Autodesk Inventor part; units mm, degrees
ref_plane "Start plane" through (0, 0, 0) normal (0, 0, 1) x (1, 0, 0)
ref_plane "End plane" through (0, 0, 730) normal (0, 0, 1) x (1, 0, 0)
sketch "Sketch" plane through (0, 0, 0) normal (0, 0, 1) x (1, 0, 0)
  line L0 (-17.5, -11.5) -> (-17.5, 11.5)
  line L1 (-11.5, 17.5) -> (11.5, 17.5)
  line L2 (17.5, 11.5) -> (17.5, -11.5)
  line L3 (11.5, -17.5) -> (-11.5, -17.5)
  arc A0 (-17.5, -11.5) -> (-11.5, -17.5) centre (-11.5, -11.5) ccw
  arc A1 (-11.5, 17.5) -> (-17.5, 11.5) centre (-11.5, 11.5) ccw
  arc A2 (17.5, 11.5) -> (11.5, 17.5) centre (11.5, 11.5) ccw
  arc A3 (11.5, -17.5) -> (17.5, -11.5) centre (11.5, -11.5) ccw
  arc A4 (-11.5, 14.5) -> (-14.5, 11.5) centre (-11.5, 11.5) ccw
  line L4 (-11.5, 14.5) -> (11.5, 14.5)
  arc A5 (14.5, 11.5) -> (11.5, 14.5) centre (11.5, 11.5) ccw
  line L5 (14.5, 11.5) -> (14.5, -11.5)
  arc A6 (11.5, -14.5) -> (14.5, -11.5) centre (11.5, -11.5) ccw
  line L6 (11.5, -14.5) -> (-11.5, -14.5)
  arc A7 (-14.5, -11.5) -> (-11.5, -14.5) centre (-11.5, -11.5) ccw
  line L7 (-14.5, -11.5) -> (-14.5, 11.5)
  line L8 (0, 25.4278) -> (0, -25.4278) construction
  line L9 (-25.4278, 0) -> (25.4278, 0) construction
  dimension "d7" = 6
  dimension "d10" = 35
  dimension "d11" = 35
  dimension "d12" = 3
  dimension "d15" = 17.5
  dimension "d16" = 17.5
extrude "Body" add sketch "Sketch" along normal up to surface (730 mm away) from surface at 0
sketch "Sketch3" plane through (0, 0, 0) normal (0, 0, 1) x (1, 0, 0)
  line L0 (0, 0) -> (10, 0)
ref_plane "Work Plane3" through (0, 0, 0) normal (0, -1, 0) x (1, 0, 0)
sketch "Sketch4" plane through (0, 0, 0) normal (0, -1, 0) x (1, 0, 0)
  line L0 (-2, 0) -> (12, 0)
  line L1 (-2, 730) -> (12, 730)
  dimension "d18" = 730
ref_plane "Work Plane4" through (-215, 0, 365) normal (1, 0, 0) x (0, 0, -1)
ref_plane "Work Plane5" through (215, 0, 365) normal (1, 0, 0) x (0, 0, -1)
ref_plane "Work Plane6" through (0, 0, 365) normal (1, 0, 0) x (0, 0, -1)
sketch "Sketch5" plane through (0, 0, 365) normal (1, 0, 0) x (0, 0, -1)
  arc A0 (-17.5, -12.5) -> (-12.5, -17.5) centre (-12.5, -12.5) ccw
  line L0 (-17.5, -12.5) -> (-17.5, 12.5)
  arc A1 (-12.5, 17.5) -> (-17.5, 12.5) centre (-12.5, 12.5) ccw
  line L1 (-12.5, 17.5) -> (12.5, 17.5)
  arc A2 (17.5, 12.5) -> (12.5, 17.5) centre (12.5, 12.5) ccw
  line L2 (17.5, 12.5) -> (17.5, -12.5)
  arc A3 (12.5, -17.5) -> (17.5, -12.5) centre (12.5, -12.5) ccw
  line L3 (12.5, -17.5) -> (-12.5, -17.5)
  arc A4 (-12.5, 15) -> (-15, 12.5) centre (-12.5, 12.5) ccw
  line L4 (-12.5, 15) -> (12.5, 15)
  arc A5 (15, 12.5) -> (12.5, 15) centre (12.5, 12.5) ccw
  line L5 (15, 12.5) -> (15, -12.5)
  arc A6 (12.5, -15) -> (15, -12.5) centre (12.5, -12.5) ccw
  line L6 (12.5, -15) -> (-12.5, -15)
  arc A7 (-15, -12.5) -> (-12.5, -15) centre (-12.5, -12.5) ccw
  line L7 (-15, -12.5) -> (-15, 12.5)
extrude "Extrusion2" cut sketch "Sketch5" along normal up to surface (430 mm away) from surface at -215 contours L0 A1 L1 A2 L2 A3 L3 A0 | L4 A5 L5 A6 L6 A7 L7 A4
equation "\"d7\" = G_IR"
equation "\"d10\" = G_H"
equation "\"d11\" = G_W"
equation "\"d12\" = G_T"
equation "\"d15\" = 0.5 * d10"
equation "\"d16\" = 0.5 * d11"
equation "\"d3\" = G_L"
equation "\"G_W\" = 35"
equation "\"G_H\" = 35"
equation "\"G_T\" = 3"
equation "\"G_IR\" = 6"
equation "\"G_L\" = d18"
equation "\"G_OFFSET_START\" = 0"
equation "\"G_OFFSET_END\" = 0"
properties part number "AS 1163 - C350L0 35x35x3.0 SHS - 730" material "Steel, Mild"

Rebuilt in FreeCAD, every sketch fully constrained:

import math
import FreeCAD as App
import Part
import Sketcher

doc = App.newDocument("Part")
body = doc.addObject("PartDesign::Body", "Body")
body.AllowCompound = True

sketch1 = body.newObject("Sketcher::SketchObject", "Sketch")
sketch1.AttachmentSupport = (doc.getObject("XY_Plane"), [""])
sketch1.MapMode = "FlatFace"
sketch1.addGeometry([
    Part.LineSegment(App.Vector(-17.5, 11.5, 0), App.Vector(-17.5, -11.5, 0)),
    Part.ArcOfCircle(Part.Circle(App.Vector(-11.5, -11.5, 0), App.Vector(0, 0, 1), 6), math.radians(180), math.radians(270)),
    Part.LineSegment(App.Vector(-11.5, -17.5, 0), App.Vector(11.5, -17.5, 0)),
    Part.ArcOfCircle(Part.Circle(App.Vector(11.5, -11.5, 0), App.Vector(0, 0, 1), 6), math.radians(-90), math.radians(0)),
    Part.LineSegment(App.Vector(17.5, -11.5, 0), App.Vector(17.5, 11.5, 0)),
    Part.ArcOfCircle(Part.Circle(App.Vector(11.5, 11.5, 0), App.Vector(0, 0, 1), 6), math.radians(0), math.radians(90)),
    Part.LineSegment(App.Vector(11.5, 17.5, 0), App.Vector(-11.5, 17.5, 0)),
    Part.ArcOfCircle(Part.Circle(App.Vector(-11.5, 11.5, 0), App.Vector(0, 0, 1), 6), math.radians(90), math.radians(180)),
    Part.ArcOfCircle(Part.Circle(App.Vector(-11.5, 11.5, 0), App.Vector(0, 0, 1), 3), math.radians(90), math.radians(180)),
    Part.LineSegment(App.Vector(-11.5, 14.5, 0), App.Vector(11.5, 14.5, 0)),
    Part.ArcOfCircle(Part.Circle(App.Vector(11.5, 11.5, 0), App.Vector(0, 0, 1), 3), math.radians(0), math.radians(90)),
    Part.LineSegment(App.Vector(14.5, 11.5, 0), App.Vector(14.5, -11.5, 0)),
    Part.ArcOfCircle(Part.Circle(App.Vector(11.5, -11.5, 0), App.Vector(0, 0, 1), 3), math.radians(-90), math.radians(0)),
    Part.LineSegment(App.Vector(11.5, -14.5, 0), App.Vector(-11.5, -14.5, 0)),
    Part.ArcOfCircle(Part.Circle(App.Vector(-11.5, -11.5, 0), App.Vector(0, 0, 1), 3), math.radians(180), math.radians(270)),
    Part.LineSegment(App.Vector(-14.5, -11.5, 0), App.Vector(-14.5, 11.5, 0)),
], False)
sketch1.addConstraint([
    Sketcher.Constraint("Tangent", 0, 2, 1, 1),
    Sketcher.Constraint("Tangent", 1, 2, 2, 1),
    Sketcher.Constraint("Tangent", 2, 2, 3, 1),
    Sketcher.Constraint("Tangent", 3, 2, 4, 1),
    Sketcher.Constraint("Tangent", 4, 2, 5, 1),
    Sketcher.Constraint("Tangent", 5, 2, 6, 1),
    Sketcher.Constraint("Tangent", 6, 2, 7, 1),
    Sketcher.Constraint("Tangent", 7, 2, 0, 1),
    Sketcher.Constraint("Tangent", 8, 1, 9, 1),
    Sketcher.Constraint("Tangent", 9, 2, 10, 2),
    Sketcher.Constraint("Tangent", 10, 1, 11, 1),
    Sketcher.Constraint("Tangent", 11, 2, 12, 2),
    Sketcher.Constraint("Tangent", 12, 1, 13, 1),
    Sketcher.Constraint("Tangent", 13, 2, 14, 2),
    Sketcher.Constraint("Tangent", 14, 1, 15, 1),
    Sketcher.Constraint("Tangent", 15, 2, 8, 2),
    Sketcher.Constraint("Vertical", 0),
    Sketcher.Constraint("Horizontal", 2),
    Sketcher.Constraint("Vertical", 4),
    Sketcher.Constraint("Horizontal", 6),
    Sketcher.Constraint("Horizontal", 9),
    Sketcher.Constraint("Vertical", 11),
    Sketcher.Constraint("Horizontal", 13),
    Sketcher.Constraint("Vertical", 15),
    Sketcher.Constraint("Coincident", 8, 3, 7, 3),
    Sketcher.Constraint("Coincident", 10, 3, 5, 3),
    Sketcher.Constraint("Coincident", 12, 3, 3, 3),
    Sketcher.Constraint("Equal", 1, 3),
    Sketcher.Constraint("Equal", 3, 5),
    Sketcher.Constraint("Equal", 5, 7),
    Sketcher.Constraint("Equal", 12, 14),
    Sketcher.Constraint("Symmetric", 1, 3, 5, 3, -1, 1),
    Sketcher.Constraint("Equal", 13, 0),
    Sketcher.Constraint("Radius", 1, 6.0),
    Sketcher.Constraint("Radius", 8, 3.0),
    Sketcher.Constraint("DistanceX", 0, 2, -1, 1, 17.5),
])
pad1 = body.newObject("PartDesign::Pad", "Pad")
pad1.Profile = sketch1
pad1.Length = 730

sketch2 = body.newObject("Sketcher::SketchObject", "Sketch001")
sketch2.AttachmentSupport = (doc.getObject("YZ_Plane"), [""])
sketch2.MapMode = "FlatFace"
sketch2.AttachmentOffset = App.Placement(App.Vector(0, 0, -215), App.Rotation())
sketch2.addGeometry([
    Part.LineSegment(App.Vector(12.5, 382.5, 0), App.Vector(-12.5, 382.5, 0)),
    Part.ArcOfCircle(Part.Circle(App.Vector(-12.5, 377.5, 0), App.Vector(0, 0, 1), 5), math.radians(90), math.radians(180)),
    Part.LineSegment(App.Vector(-17.5, 377.5, 0), App.Vector(-17.5, 352.5, 0)),
    Part.ArcOfCircle(Part.Circle(App.Vector(-12.5, 352.5, 0), App.Vector(0, 0, 1), 5), math.radians(180), math.radians(270)),
    Part.LineSegment(App.Vector(-12.5, 347.5, 0), App.Vector(12.5, 347.5, 0)),
    Part.ArcOfCircle(Part.Circle(App.Vector(12.5, 352.5, 0), App.Vector(0, 0, 1), 5), math.radians(-90), math.radians(0)),
    Part.LineSegment(App.Vector(17.5, 352.5, 0), App.Vector(17.5, 377.5, 0)),
    Part.ArcOfCircle(Part.Circle(App.Vector(12.5, 377.5, 0), App.Vector(0, 0, 1), 5), math.radians(0), math.radians(90)),
], False)
sketch2.addConstraint([
    Sketcher.Constraint("Tangent", 0, 2, 1, 1),
    Sketcher.Constraint("Tangent", 1, 2, 2, 1),
    Sketcher.Constraint("Tangent", 2, 2, 3, 1),
    Sketcher.Constraint("Tangent", 3, 2, 4, 1),
    Sketcher.Constraint("Tangent", 4, 2, 5, 1),
    Sketcher.Constraint("Tangent", 5, 2, 6, 1),
    Sketcher.Constraint("Tangent", 6, 2, 7, 1),
    Sketcher.Constraint("Tangent", 7, 2, 0, 1),
    Sketcher.Constraint("Horizontal", 0),
    Sketcher.Constraint("Vertical", 2),
    Sketcher.Constraint("Horizontal", 4),
    Sketcher.Constraint("Vertical", 6),
    Sketcher.Constraint("Equal", 1, 3),
    Sketcher.Constraint("Equal", 3, 5),
    Sketcher.Constraint("Equal", 5, 7),
    Sketcher.Constraint("Equal", 4, 2),
    Sketcher.Constraint("Radius", 1, 5.0),
    Sketcher.Constraint("DistanceX", 0, 2, 0, 1, 25.0),
    Sketcher.Constraint("DistanceX", 1, 3, -1, 1, 12.5),
    Sketcher.Constraint("DistanceY", -1, 1, 1, 3, 377.5),
])
pocket1 = body.newObject("PartDesign::Pocket", "Pocket")
pocket1.Profile = sketch2
pocket1.Length = 430
pocket1.Reversed = True

doc.recompute()
